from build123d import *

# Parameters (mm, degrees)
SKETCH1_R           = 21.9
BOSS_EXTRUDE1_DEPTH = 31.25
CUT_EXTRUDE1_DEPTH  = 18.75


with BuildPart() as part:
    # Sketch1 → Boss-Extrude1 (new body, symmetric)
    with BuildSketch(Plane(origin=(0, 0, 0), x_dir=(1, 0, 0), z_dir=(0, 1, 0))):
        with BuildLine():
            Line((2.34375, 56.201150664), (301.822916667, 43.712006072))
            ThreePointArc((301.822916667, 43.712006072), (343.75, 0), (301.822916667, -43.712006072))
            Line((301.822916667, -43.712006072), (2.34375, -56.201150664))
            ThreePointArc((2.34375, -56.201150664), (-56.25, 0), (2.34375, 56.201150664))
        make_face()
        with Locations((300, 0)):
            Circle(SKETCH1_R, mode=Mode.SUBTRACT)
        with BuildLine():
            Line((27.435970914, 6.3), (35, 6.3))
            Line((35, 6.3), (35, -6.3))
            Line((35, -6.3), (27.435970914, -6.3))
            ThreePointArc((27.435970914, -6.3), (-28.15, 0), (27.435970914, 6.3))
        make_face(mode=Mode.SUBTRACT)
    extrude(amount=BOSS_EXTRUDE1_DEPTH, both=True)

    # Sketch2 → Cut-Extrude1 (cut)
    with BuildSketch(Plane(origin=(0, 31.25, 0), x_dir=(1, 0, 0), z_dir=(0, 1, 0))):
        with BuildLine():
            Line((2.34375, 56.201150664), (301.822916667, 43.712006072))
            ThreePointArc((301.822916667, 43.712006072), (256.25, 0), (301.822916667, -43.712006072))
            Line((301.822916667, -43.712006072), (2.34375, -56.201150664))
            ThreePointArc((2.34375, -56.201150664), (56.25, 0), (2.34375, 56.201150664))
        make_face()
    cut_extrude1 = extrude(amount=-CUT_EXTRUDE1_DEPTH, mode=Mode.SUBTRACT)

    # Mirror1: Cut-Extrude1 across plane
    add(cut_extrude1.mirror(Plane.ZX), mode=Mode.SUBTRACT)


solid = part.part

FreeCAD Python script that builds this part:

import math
import FreeCAD as App
import Part
import Sketcher

V = App.Vector
Q = App.Units.Quantity

doc = App.newDocument("Part")
params = doc.addObject("Spreadsheet::Sheet", "Params")
for row, (alias, value) in enumerate([
    ("sketch1_diameter", "43.8 mm"),
    ("sketch1_radius", "56.25 mm"),
    ("sketch1_radius2", "43.75 mm"),
    ("sketch1_radius3", "28.15 mm"),
    ("sketch1_height", "12.6 mm"),
    ("pad1_length", "62.5 mm"),
    ("sketch2_radius", "56.25 mm"),
    ("sketch2_radius2", "43.75 mm"),
    ("pocket1_length", "18.75 mm"),
], start=1):
    params.set(f"A{row}", alias)
    params.set(f"B{row}", "=" + value)
    params.setAlias(f"B{row}", alias)

body = doc.addObject("PartDesign::Body", "Body")

# Sketch on XZ plane
sketch1 = body.newObject("Sketcher::SketchObject", "Sketch")
sketch1.AttachmentSupport = (doc.getObject("XZ_Plane"), [""])
sketch1.MapMode = "FlatFace"
sketch1.addGeometry(Part.LineSegment(V(302, -44, 0), V(2, -56, 0)), False)
sketch1.addGeometry(Part.ArcOfCircle(Part.Circle(V(0, 0, 0), V(0, 0, 1), 56), math.radians(88), math.radians(272)), False)
sketch1.addGeometry(Part.LineSegment(V(2, 56, 0), V(302, 44, 0)), False)
sketch1.addGeometry(Part.ArcOfCircle(Part.Circle(V(300, 0, 0), V(0, 0, 1), 44), math.radians(-88), math.radians(88)), False)
sketch1.addGeometry(Part.Circle(V(300, 0, 0), V(0, 0, 1), 22), False)
sketch1.addGeometry(Part.LineSegment(V(27, -6, 0), V(35, -6, 0)), False)
sketch1.addGeometry(Part.LineSegment(V(35, -6, 0), V(35, 6, 0)), False)
sketch1.addGeometry(Part.LineSegment(V(35, 6, 0), V(27, 6, 0)), False)
sketch1.addGeometry(Part.ArcOfCircle(Part.Circle(V(0, 0, 0), V(0, 0, 1), 28), math.radians(13), math.radians(347)), False)
sketch1.addConstraint(Sketcher.Constraint("Tangent", 0, 2, 1, 2))
sketch1.addConstraint(Sketcher.Constraint("Tangent", 1, 1, 2, 1))
sketch1.addConstraint(Sketcher.Constraint("Tangent", 2, 2, 3, 2))
sketch1.addConstraint(Sketcher.Constraint("Tangent", 3, 1, 0, 1))
sketch1.addConstraint(Sketcher.Constraint("Coincident", 5, 2, 6, 1))
sketch1.addConstraint(Sketcher.Constraint("Coincident", 6, 2, 7, 1))
sketch1.addConstraint(Sketcher.Constraint("Coincident", 7, 2, 8, 1))
sketch1.addConstraint(Sketcher.Constraint("Coincident", 8, 2, 5, 1))
sketch1.addConstraint(Sketcher.Constraint("Horizontal", 5))
sketch1.addConstraint(Sketcher.Constraint("Vertical", 6))
sketch1.addConstraint(Sketcher.Constraint("Horizontal", 7))
sketch1.addConstraint(Sketcher.Constraint("Coincident", 1, 3, -1, 1))
sketch1.addConstraint(Sketcher.Constraint("Coincident", 8, 3, -1, 1))
sketch1.addConstraint(Sketcher.Constraint("Coincident", 4, 3, 3, 3))
sketch1.addConstraint(Sketcher.Constraint("PointOnObject", 3, 3, -1))
sketch1.addConstraint(Sketcher.Constraint("Vertical", 7, 2, 8, 2))
sketch1.addConstraint(Sketcher.Constraint("Diameter", 4, Q("43.8 mm")))
sketch1.addConstraint(Sketcher.Constraint("Radius", 1, Q("56.25 mm")))
sketch1.addConstraint(Sketcher.Constraint("Radius", 3, Q("43.75 mm")))
sketch1.addConstraint(Sketcher.Constraint("Radius", 8, Q("28.15 mm")))
sketch1.addConstraint(Sketcher.Constraint("DistanceY", 6, 1, 6, 2, Q("12.6 mm")))
sketch1.addConstraint(Sketcher.Constraint("DistanceX", -1, 1, 3, 3, Q("300 mm")))
sketch1.addConstraint(Sketcher.Constraint("DistanceX", -1, 1, 5, 2, Q("35 mm")))
sketch1.setExpression("Constraints[16]", "Params.sketch1_diameter")
sketch1.setExpression("Constraints[17]", "Params.sketch1_radius")
sketch1.setExpression("Constraints[18]", "Params.sketch1_radius2")
sketch1.setExpression("Constraints[19]", "Params.sketch1_radius3")
sketch1.setExpression("Constraints[20]", "Params.sketch1_height")
pad1 = body.newObject("PartDesign::Pad", "Pad")
pad1.Profile = sketch1
pad1.setExpression("Length", "Params.pad1_length")
pad1.Midplane = True

# Sketch on XZ plane
sketch2 = body.newObject("Sketcher::SketchObject", "Sketch001")
sketch2.AttachmentSupport = (doc.getObject("XZ_Plane"), [""])
sketch2.MapMode = "FlatFace"
sketch2.AttachmentOffset = App.Placement(V(0, 0, -31.25), App.Rotation())
sketch2.addGeometry(Part.LineSegment(V(302, -44, 0), V(2, -56, 0)), False)
sketch2.addGeometry(Part.ArcOfCircle(Part.Circle(V(0, 0, 0), V(0, 0, 1), 56), math.radians(-88), math.radians(88)), False)
sketch2.addGeometry(Part.LineSegment(V(2, 56, 0), V(302, 44, 0)), False)
sketch2.addGeometry(Part.ArcOfCircle(Part.Circle(V(300, 0, 0), V(0, 0, 1), 44), math.radians(88), math.radians(272)), False)
sketch2.addConstraint(Sketcher.Constraint("Tangent", 0, 2, 1, 1))
sketch2.addConstraint(Sketcher.Constraint("Tangent", 1, 2, 2, 1))
sketch2.addConstraint(Sketcher.Constraint("Tangent", 2, 2, 3, 1))
sketch2.addConstraint(Sketcher.Constraint("Tangent", 3, 2, 0, 1))
sketch2.addConstraint(Sketcher.Constraint("Coincident", 1, 3, -1, 1))
sketch2.addConstraint(Sketcher.Constraint("PointOnObject", 3, 3, -1))
sketch2.addConstraint(Sketcher.Constraint("Radius", 1, Q("56.25 mm")))
sketch2.addConstraint(Sketcher.Constraint("Radius", 3, Q("43.75 mm")))
sketch2.addConstraint(Sketcher.Constraint("DistanceX", -1, 1, 3, 3, Q("300 mm")))
sketch2.setExpression("Constraints[6]", "Params.sketch2_radius")
sketch2.setExpression("Constraints[7]", "Params.sketch2_radius2")
pocket1 = body.newObject("PartDesign::Pocket", "Pocket")
pocket1.Profile = sketch2
pocket1.setExpression("Length", "Params.pocket1_length")
pocket1.Reversed = True
doc.recompute()

mirrored = body.newObject("PartDesign::Mirrored", "Mirrored")
mirrored.Originals = [pocket1]
mirrored.MirrorPlane = (doc.getObject("XZ_Plane"), [""])
body.Tip = mirrored

doc.recompute()
